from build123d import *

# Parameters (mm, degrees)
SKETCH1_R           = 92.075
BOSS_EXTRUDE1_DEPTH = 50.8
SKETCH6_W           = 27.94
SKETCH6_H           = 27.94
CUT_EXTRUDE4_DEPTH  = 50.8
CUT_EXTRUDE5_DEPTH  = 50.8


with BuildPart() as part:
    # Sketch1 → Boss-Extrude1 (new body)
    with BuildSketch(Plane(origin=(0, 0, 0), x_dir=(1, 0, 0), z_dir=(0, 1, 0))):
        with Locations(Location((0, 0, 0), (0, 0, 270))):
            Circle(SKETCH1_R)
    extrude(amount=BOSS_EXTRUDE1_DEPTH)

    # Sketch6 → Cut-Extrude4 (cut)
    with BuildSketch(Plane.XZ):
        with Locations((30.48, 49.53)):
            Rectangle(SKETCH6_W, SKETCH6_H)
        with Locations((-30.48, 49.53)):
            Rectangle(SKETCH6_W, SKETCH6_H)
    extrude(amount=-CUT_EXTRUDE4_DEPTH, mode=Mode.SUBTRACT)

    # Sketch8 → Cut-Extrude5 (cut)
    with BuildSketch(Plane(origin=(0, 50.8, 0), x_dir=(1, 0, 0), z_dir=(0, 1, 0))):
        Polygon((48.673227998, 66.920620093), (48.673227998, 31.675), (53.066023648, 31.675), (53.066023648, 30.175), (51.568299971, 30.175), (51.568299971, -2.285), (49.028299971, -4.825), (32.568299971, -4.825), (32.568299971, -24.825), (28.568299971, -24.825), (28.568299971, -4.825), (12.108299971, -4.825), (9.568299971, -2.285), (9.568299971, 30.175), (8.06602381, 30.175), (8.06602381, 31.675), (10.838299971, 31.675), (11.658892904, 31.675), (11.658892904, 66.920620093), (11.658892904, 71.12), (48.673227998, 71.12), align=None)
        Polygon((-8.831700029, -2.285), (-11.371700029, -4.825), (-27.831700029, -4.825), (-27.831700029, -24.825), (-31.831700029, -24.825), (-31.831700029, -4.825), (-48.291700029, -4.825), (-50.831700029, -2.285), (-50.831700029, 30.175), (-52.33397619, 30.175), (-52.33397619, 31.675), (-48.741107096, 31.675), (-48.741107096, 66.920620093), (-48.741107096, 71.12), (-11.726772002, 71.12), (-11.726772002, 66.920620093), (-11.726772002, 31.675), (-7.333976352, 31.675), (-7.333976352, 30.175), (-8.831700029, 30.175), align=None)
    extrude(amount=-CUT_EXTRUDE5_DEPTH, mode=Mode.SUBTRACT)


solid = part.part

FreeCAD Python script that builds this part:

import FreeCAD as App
import Part
import Sketcher
from FreeCAD import Vector
Q = App.Units.Quantity

doc = App.newDocument("Part")
body = doc.addObject("PartDesign::Body", "Body")

# Sketch on XZ plane
sketch1 = body.newObject("Sketcher::SketchObject", "Sketch")
sketch1.AttachmentSupport = (doc.getObject("XZ_Plane"), [""])
sketch1.MapMode = "FlatFace"
sketch1.addGeometry(Part.Circle(Vector(0, 0, 0), Vector(0, 0, 1), 92), False)
sketch1.addConstraint(Sketcher.Constraint("Coincident", 0, 3, -1, 1))
sketch1.addConstraint(Sketcher.Constraint("Diameter", 0, Q("184.15 mm")))
pad1 = body.newObject("PartDesign::Pad", "Pad")
pad1.Profile = sketch1
pad1.Length = 50.8
pad1.Reversed = True

# Sketch on XZ plane
sketch2 = body.newObject("Sketcher::SketchObject", "Sketch001")
sketch2.AttachmentSupport = (doc.getObject("XZ_Plane"), [""])
sketch2.MapMode = "FlatFace"
sketch2.addGeometry(Part.LineSegment(Vector(17, 64, 0), Vector(17, 36, 0)), False)
sketch2.addGeometry(Part.LineSegment(Vector(17, 36, 0), Vector(44, 36, 0)), False)
sketch2.addGeometry(Part.LineSegment(Vector(44, 36, 0), Vector(44, 64, 0)), False)
sketch2.addGeometry(Part.LineSegment(Vector(44, 64, 0), Vector(17, 64, 0)), False)
sketch2.addGeometry(Part.LineSegment(Vector(-44, 64, 0), Vector(-44, 36, 0)), False)
sketch2.addGeometry(Part.LineSegment(Vector(-44, 36, 0), Vector(-17, 36, 0)), False)
sketch2.addGeometry(Part.LineSegment(Vector(-17, 36, 0), Vector(-17, 64, 0)), False)
sketch2.addGeometry(Part.LineSegment(Vector(-17, 64, 0), Vector(-44, 64, 0)), False)
sketch2.addConstraint(Sketcher.Constraint("Coincident", 0, 2, 1, 1))
sketch2.addConstraint(Sketcher.Constraint("Coincident", 1, 2, 2, 1))
sketch2.addConstraint(Sketcher.Constraint("Coincident", 2, 2, 3, 1))
sketch2.addConstraint(Sketcher.Constraint("Coincident", 3, 2, 0, 1))
sketch2.addConstraint(Sketcher.Constraint("Coincident", 4, 2, 5, 1))
sketch2.addConstraint(Sketcher.Constraint("Coincident", 5, 2, 6, 1))
sketch2.addConstraint(Sketcher.Constraint("Coincident", 6, 2, 7, 1))
sketch2.addConstraint(Sketcher.Constraint("Coincident", 7, 2, 4, 1))
sketch2.addConstraint(Sketcher.Constraint("Vertical", 0))
sketch2.addConstraint(Sketcher.Constraint("Horizontal", 1))
sketch2.addConstraint(Sketcher.Constraint("Vertical", 2))
sketch2.addConstraint(Sketcher.Constraint("Horizontal", 3))
sketch2.addConstraint(Sketcher.Constraint("Vertical", 4))
sketch2.addConstraint(Sketcher.Constraint("Horizontal", 5))
sketch2.addConstraint(Sketcher.Constraint("Vertical", 6))
sketch2.addConstraint(Sketcher.Constraint("Horizontal", 7))
sketch2.addConstraint(Sketcher.Constraint("Symmetric", 1, 2, 4, 2, -2))
sketch2.addConstraint(Sketcher.Constraint("Symmetric", 3, 2, 6, 2, -2))
sketch2.addConstraint(Sketcher.Constraint("Equal", 7, 0))
sketch2.addConstraint(Sketcher.Constraint("DistanceX", 1, 1, 1, 2, Q("27.94 mm")))
sketch2.addConstraint(Sketcher.Constraint("DistanceY", -1, 1, 2, 2, Q("63.5 mm")))
sketch2.addConstraint(Sketcher.Constraint("DistanceX", 4, 2, 1, 2, Q("88.9 mm")))
pocket1 = body.newObject("PartDesign::Pocket", "Pocket")
pocket1.Profile = sketch2
pocket1.Length = 50.8

# Sketch on XZ plane
sketch3 = body.newObject("Sketcher::SketchObject", "Sketch002")
sketch3.AttachmentSupport = (doc.getObject("XZ_Plane"), [""])
sketch3.MapMode = "FlatFace"
sketch3.AttachmentOffset = App.Placement(Vector(0, 0, -50.8), App.Rotation())
sketch3.addGeometry(Part.LineSegment(Vector(48.7, -31.7, 0), Vector(48.7, -71.1, 0)), False)
sketch3.addGeometry(Part.LineSegment(Vector(48.7, -71.1, 0), Vector(11.7, -71.1, 0)), False)
sketch3.addGeometry(Part.LineSegment(Vector(11.7, -71.1, 0), Vector(11.7, -31.7, 0)), False)
sketch3.addGeometry(Part.LineSegment(Vector(11.7, -31.7, 0), Vector(8.1, -31.7, 0)), False)
sketch3.addGeometry(Part.LineSegment(Vector(8.1, -31.7, 0), Vector(8.1, -30.2, 0)), False)
sketch3.addGeometry(Part.LineSegment(Vector(8.1, -30.2, 0), Vector(9.6, -30.2, 0)), False)
sketch3.addGeometry(Part.LineSegment(Vector(9.6, -30.2, 0), Vector(9.6, 2.3, 0)), False)
sketch3.addGeometry(Part.LineSegment(Vector(9.6, 2.3, 0), Vector(12.1, 4.8, 0)), False)
sketch3.addGeometry(Part.LineSegment(Vector(12.1, 4.8, 0), Vector(28.6, 4.8, 0)), False)
sketch3.addGeometry(Part.LineSegment(Vector(28.6, 4.8, 0), Vector(28.6, 24.8, 0)), False)
sketch3.addGeometry(Part.LineSegment(Vector(28.6, 24.8, 0), Vector(32.6, 24.8, 0)), False)
sketch3.addGeometry(Part.LineSegment(Vector(32.6, 24.8, 0), Vector(32.6, 4.8, 0)), False)
sketch3.addGeometry(Part.LineSegment(Vector(32.6, 4.8, 0), Vector(49, 4.8, 0)), False)
sketch3.addGeometry(Part.LineSegment(Vector(49, 4.8, 0), Vector(51.6, 2.3, 0)), False)
sketch3.addGeometry(Part.LineSegment(Vector(51.6, 2.3, 0), Vector(51.6, -30.2, 0)), False)
sketch3.addGeometry(Part.LineSegment(Vector(51.6, -30.2, 0), Vector(53.1, -30.2, 0)), False)
sketch3.addGeometry(Part.LineSegment(Vector(53.1, -30.2, 0), Vector(53.1, -31.7, 0)), False)
sketch3.addGeometry(Part.LineSegment(Vector(53.1, -31.7, 0), Vector(48.7, -31.7, 0)), False)
sketch3.addGeometry(Part.LineSegment(Vector(-11.4, 4.8, 0), Vector(-8.8, 2.3, 0)), False)
sketch3.addGeometry(Part.LineSegment(Vector(-8.8, 2.3, 0), Vector(-8.8, -30.2, 0)), False)
sketch3.addGeometry(Part.LineSegment(Vector(-8.8, -30.2, 0), Vector(-7.3, -30.2, 0)), False)
sketch3.addGeometry(Part.LineSegment(Vector(-7.3, -30.2, 0), Vector(-7.3, -31.7, 0)), False)
sketch3.addGeometry(Part.LineSegment(Vector(-7.3, -31.7, 0), Vector(-11.7, -31.7, 0)), False)
sketch3.addGeometry(Part.LineSegment(Vector(-11.7, -31.7, 0), Vector(-11.7, -71.1, 0)), False)
sketch3.addGeometry(Part.LineSegment(Vector(-11.7, -71.1, 0), Vector(-48.7, -71.1, 0)), False)
sketch3.addGeometry(Part.LineSegment(Vector(-48.7, -71.1, 0), Vector(-48.7, -31.7, 0)), False)
sketch3.addGeometry(Part.LineSegment(Vector(-48.7, -31.7, 0), Vector(-52.3, -31.7, 0)), False)
sketch3.addGeometry(Part.LineSegment(Vector(-52.3, -31.7, 0), Vector(-52.3, -30.2, 0)), False)
sketch3.addGeometry(Part.LineSegment(Vector(-52.3, -30.2, 0), Vector(-50.8, -30.2, 0)), False)
sketch3.addGeometry(Part.LineSegment(Vector(-50.8, -30.2, 0), Vector(-50.8, 2.3, 0)), False)
sketch3.addGeometry(Part.LineSegment(Vector(-50.8, 2.3, 0), Vector(-48.3, 4.8, 0)), False)
sketch3.addGeometry(Part.LineSegment(Vector(-48.3, 4.8, 0), Vector(-31.8, 4.8, 0)), False)
sketch3.addGeometry(Part.LineSegment(Vector(-31.8, 4.8, 0), Vector(-31.8, 24.8, 0)), False)
sketch3.addGeometry(Part.LineSegment(Vector(-31.8, 24.8, 0), Vector(-27.8, 24.8, 0)), False)
sketch3.addGeometry(Part.LineSegment(Vector(-27.8, 24.8, 0), Vector(-27.8, 4.8, 0)), False)
sketch3.addGeometry(Part.LineSegment(Vector(-27.8, 4.8, 0), Vector(-11.4, 4.8, 0)), False)
sketch3.addConstraint(Sketcher.Constraint("Coincident", 0, 2, 1, 1))
sketch3.addConstraint(Sketcher.Constraint("Coincident", 1, 2, 2, 1))
sketch3.addConstraint(Sketcher.Constraint("Coincident", 2, 2, 3, 1))
sketch3.addConstraint(Sketcher.Constraint("Coincident", 3, 2, 4, 1))
sketch3.addConstraint(Sketcher.Constraint("Coincident", 4, 2, 5, 1))
sketch3.addConstraint(Sketcher.Constraint("Coincident", 5, 2, 6, 1))
sketch3.addConstraint(Sketcher.Constraint("Coincident", 6, 2, 7, 1))
sketch3.addConstraint(Sketcher.Constraint("Coincident", 7, 2, 8, 1))
sketch3.addConstraint(Sketcher.Constraint("Coincident", 8, 2, 9, 1))
sketch3.addConstraint(Sketcher.Constraint("Coincident", 9, 2, 10, 1))
sketch3.addConstraint(Sketcher.Constraint("Coincident", 10, 2, 11, 1))
sketch3.addConstraint(Sketcher.Constraint("Coincident", 11, 2, 12, 1))
sketch3.addConstraint(Sketcher.Constraint("Coincident", 12, 2, 13, 1))
sketch3.addConstraint(Sketcher.Constraint("Coincident", 13, 2, 14, 1))
sketch3.addConstraint(Sketcher.Constraint("Coincident", 14, 2, 15, 1))
sketch3.addConstraint(Sketcher.Constraint("Coincident", 15, 2, 16, 1))
sketch3.addConstraint(Sketcher.Constraint("Coincident", 16, 2, 17, 1))
sketch3.addConstraint(Sketcher.Constraint("Coincident", 17, 2, 0, 1))
sketch3.addConstraint(Sketcher.Constraint("Coincident", 18, 2, 19, 1))
sketch3.addConstraint(Sketcher.Constraint("Coincident", 19, 2, 20, 1))
sketch3.addConstraint(Sketcher.Constraint("Coincident", 20, 2, 21, 1))
sketch3.addConstraint(Sketcher.Constraint("Coincident", 21, 2, 22, 1))
sketch3.addConstraint(Sketcher.Constraint("Coincident", 22, 2, 23, 1))
sketch3.addConstraint(Sketcher.Constraint("Coincident", 23, 2, 24, 1))
sketch3.addConstraint(Sketcher.Constraint("Coincident", 24, 2, 25, 1))
sketch3.addConstraint(Sketcher.Constraint("Coincident", 25, 2, 26, 1))
sketch3.addConstraint(Sketcher.Constraint("Coincident", 26, 2, 27, 1))
sketch3.addConstraint(Sketcher.Constraint("Coincident", 27, 2, 28, 1))
sketch3.addConstraint(Sketcher.Constraint("Coincident", 28, 2, 29, 1))
sketch3.addConstraint(Sketcher.Constraint("Coincident", 29, 2, 30, 1))
sketch3.addConstraint(Sketcher.Constraint("Coincident", 30, 2, 31, 1))
sketch3.addConstraint(Sketcher.Constraint("Coincident", 31, 2, 32, 1))
sketch3.addConstraint(Sketcher.Constraint("Coincident", 32, 2, 33, 1))
sketch3.addConstraint(Sketcher.Constraint("Coincident", 33, 2, 34, 1))
sketch3.addConstraint(Sketcher.Constraint("Coincident", 34, 2, 35, 1))
sketch3.addConstraint(Sketcher.Constraint("Coincident", 35, 2, 18, 1))
sketch3.addConstraint(Sketcher.Constraint("Vertical", 0))
sketch3.addConstraint(Sketcher.Constraint("Horizontal", 1))
sketch3.addConstraint(Sketcher.Constraint("Vertical", 2))
sketch3.addConstraint(Sketcher.Constraint("Horizontal", 3))
sketch3.addConstraint(Sketcher.Constraint("Vertical", 4))
sketch3.addConstraint(Sketcher.Constraint("Horizontal", 5))
sketch3.addConstraint(Sketcher.Constraint("Vertical", 6))
sketch3.addConstraint(Sketcher.Constraint("Horizontal", 8))
sketch3.addConstraint(Sketcher.Constraint("Vertical", 9))
sketch3.addConstraint(Sketcher.Constraint("Horizontal", 10))
sketch3.addConstraint(Sketcher.Constraint("Vertical", 11))
sketch3.addConstraint(Sketcher.Constraint("Horizontal", 12))
sketch3.addConstraint(Sketcher.Constraint("Vertical", 14))
sketch3.addConstraint(Sketcher.Constraint("Horizontal", 15))
sketch3.addConstraint(Sketcher.Constraint("Vertical", 16))
sketch3.addConstraint(Sketcher.Constraint("Horizontal", 17))
sketch3.addConstraint(Sketcher.Constraint("Vertical", 19))
sketch3.addConstraint(Sketcher.Constraint("Horizontal", 20))
sketch3.addConstraint(Sketcher.Constraint("Vertical", 21))
sketch3.addConstraint(Sketcher.Constraint("Horizontal", 22))
sketch3.addConstraint(Sketcher.Constraint("Vertical", 23))
sketch3.addConstraint(Sketcher.Constraint("Horizontal", 24))
sketch3.addConstraint(Sketcher.Constraint("Vertical", 25))
sketch3.addConstraint(Sketcher.Constraint("Horizontal", 26))
sketch3.addConstraint(Sketcher.Constraint("Vertical", 27))
sketch3.addConstraint(Sketcher.Constraint("Horizontal", 28))
sketch3.addConstraint(Sketcher.Constraint("Vertical", 29))
sketch3.addConstraint(Sketcher.Constraint("Horizontal", 31))
sketch3.addConstraint(Sketcher.Constraint("Vertical", 32))
sketch3.addConstraint(Sketcher.Constraint("Horizontal", 33))
sketch3.addConstraint(Sketcher.Constraint("Vertical", 34))
sketch3.addConstraint(Sketcher.Constraint("Horizontal", 35))
sketch3.addConstraint(Sketcher.Constraint("Perpendicular", 7, 13))
sketch3.addConstraint(Sketcher.Constraint("Parallel", 13, 18))
sketch3.addConstraint(Sketcher.Constraint("Perpendicular", 18, 30))
sketch3.addConstraint(Sketcher.Constraint("Horizontal", 8, 2, 11, 2))
sketch3.addConstraint(Sketcher.Constraint("Horizontal", 6, 2, 13, 2))
sketch3.addConstraint(Sketcher.Constraint("Horizontal", 5, 2, 14, 2))
sketch3.addConstraint(Sketcher.Constraint("Horizontal", 3, 2, 16, 2))
sketch3.addConstraint(Sketcher.Constraint("Horizontal", 13, 2, 18, 2))
sketch3.addConstraint(Sketcher.Constraint("Horizontal", 15, 2, 19, 2))
sketch3.addConstraint(Sketcher.Constraint("Horizontal", 17, 2, 21, 2))
sketch3.addConstraint(Sketcher.Constraint("Horizontal", 1, 2, 23, 2))
sketch3.addConstraint(Sketcher.Constraint("Horizontal", 22, 2, 25, 2))
sketch3.addConstraint(Sketcher.Constraint("Horizontal", 20, 2, 27, 2))
sketch3.addConstraint(Sketcher.Constraint("Horizontal", 18, 2, 29, 2))
sketch3.addConstraint(Sketcher.Constraint("Horizontal", 12, 2, 30, 2))
sketch3.addConstraint(Sketcher.Constraint("Horizontal", 10, 2, 32, 2))
sketch3.addConstraint(Sketcher.Constraint("Horizontal", 31, 2, 34, 2))
sketch3.addConstraint(Sketcher.Constraint("Equal", 8, 12))
sketch3.addConstraint(Sketcher.Constraint("Equal", 15, 20))
sketch3.addConstraint(Sketcher.Constraint("Equal", 17, 22))
sketch3.addConstraint(Sketcher.Constraint("Equal", 1, 24))
sketch3.addConstraint(Sketcher.Constraint("Equal", 3, 26))
sketch3.addConstraint(Sketcher.Constraint("Equal", 5, 28))
sketch3.addConstraint(Sketcher.Constraint("Equal", 12, 31))
sketch3.addConstraint(Sketcher.Constraint("Equal", 10, 33))
sketch3.addConstraint(Sketcher.Constraint("Equal", 7, 13))
sketch3.addConstraint(Sketcher.Constraint("DistanceX", 10, 1, 10, 2, Q("4 mm")))
sketch3.addConstraint(Sketcher.Constraint("DistanceY", 9, 1, 9, 2, Q("20 mm")))
sketch3.addConstraint(Sketcher.Constraint("DistanceY", 4, 1, 4, 2, Q("1.5 mm")))
sketch3.addConstraint(Sketcher.Constraint("DistanceY", 5, 2, 7, 2, Q("35 mm")))
sketch3.addConstraint(Sketcher.Constraint("DistanceX", 6, 2, 8, 2, Q("19 mm")))
sketch3.addConstraint(Sketcher.Constraint("DistanceX", 26, 2, 21, 2, Q("45 mm")))
sketch3.addConstraint(Sketcher.Constraint("DistanceX", 8, 1, 8, 2, Q("16.46 mm")))
sketch3.addConstraint(Sketcher.Constraint("DistanceX", 18, 2, 6, 2, Q("18.4 mm")))
sketch3.addConstraint(Sketcher.Constraint("DistanceY", 0, 2, 0, 1, Q("39.445 mm")))
sketch3.addConstraint(Sketcher.Constraint("DistanceY", 0, 2, -1, 1, Q("71.12 mm")))
sketch3.addConstraint(Sketcher.Constraint("DistanceX", 3, 2, 3, 1, Q("3.592869 mm")))
sketch3.addConstraint(Sketcher.Constraint("DistanceX", -1, 1, 5, 2, Q("9.5683 mm")))
sketch3.addConstraint(Sketcher.Constraint("DistanceX", 1, 2, 1, 1, Q("37.014335 mm")))
sketch3.addConstraint(Sketcher.Constraint("DistanceX", 5, 1, 5, 2, Q("1.502276 mm")))
pocket2 = body.newObject("PartDesign::Pocket", "Pocket001")
pocket2.Profile = sketch3
pocket2.Length = 50.8
pocket2.Reversed = True

doc.recompute()
